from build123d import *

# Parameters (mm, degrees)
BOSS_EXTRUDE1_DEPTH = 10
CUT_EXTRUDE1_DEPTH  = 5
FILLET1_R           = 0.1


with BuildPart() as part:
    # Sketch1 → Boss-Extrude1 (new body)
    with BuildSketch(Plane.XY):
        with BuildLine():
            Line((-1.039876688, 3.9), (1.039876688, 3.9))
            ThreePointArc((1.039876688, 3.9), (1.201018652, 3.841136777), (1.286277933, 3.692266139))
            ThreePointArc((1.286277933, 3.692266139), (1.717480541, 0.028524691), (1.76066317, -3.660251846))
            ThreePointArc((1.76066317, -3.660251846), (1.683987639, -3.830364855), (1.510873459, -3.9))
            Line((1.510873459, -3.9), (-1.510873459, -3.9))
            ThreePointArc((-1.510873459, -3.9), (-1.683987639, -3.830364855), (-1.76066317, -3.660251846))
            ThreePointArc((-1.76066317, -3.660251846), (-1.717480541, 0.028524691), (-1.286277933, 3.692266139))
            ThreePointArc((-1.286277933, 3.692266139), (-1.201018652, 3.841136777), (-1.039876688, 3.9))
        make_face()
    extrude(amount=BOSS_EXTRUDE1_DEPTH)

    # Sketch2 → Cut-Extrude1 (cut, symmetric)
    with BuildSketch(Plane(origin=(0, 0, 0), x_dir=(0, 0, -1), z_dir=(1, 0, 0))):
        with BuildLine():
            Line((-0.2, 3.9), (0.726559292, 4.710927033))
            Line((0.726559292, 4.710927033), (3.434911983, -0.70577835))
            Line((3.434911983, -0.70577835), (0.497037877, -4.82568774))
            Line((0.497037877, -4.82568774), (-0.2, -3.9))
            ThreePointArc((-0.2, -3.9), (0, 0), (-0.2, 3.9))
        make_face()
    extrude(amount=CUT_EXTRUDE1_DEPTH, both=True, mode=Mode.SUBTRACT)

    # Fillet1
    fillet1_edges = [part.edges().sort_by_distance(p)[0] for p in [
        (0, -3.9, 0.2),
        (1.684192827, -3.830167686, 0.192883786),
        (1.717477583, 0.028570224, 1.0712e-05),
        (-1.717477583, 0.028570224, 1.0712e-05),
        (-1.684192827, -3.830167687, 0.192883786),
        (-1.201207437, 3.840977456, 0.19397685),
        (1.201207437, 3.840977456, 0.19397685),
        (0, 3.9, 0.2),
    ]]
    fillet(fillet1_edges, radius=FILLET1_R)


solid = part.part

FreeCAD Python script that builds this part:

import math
import FreeCAD as App
import Part
import Sketcher

V = App.Vector


def edges_at(feature, points):
    """Names of the edges that pass closest to the given points."""
    edges = feature.Shape.Edges
    near = lambda p: min(range(len(edges)), key=lambda i: edges[i].distToShape(Part.Vertex(*p))[0])
    return sorted({f"Edge{near(p) + 1}" for p in points})

doc = App.newDocument("Part")
body = doc.addObject("PartDesign::Body", "Body")

# Sketch on XY plane
sketch1 = body.newObject("Sketcher::SketchObject", "Sketch")
sketch1.AttachmentSupport = (doc.getObject("XY_Plane"), [""])
sketch1.MapMode = "FlatFace"
sketch1.addGeometry(Part.LineSegment(V(1.04, 3.9, 0), V(-1.04, 3.9, 0)), False)
sketch1.addGeometry(Part.ArcOfCircle(Part.Circle(V(-1.04, 3.65, 0), V(0, 0, 1), 0.25), math.radians(90), math.radians(170)), False)
sketch1.addGeometry(Part.ArcOfCircle(Part.Circle(V(33.21, -2.22, 0), V(0, 0, 1), 35), math.radians(170.27), math.radians(182.35)), False)
sketch1.addGeometry(Part.ArcOfCircle(Part.Circle(V(-1.51, -3.65, 0), V(0, 0, 1), 0.25), math.radians(-178), math.radians(-90)), False)
sketch1.addGeometry(Part.LineSegment(V(-1.51, -3.9, 0), V(1.51, -3.9, 0)), False)
sketch1.addGeometry(Part.ArcOfCircle(Part.Circle(V(1.51, -3.65, 0), V(0, 0, 1), 0.25), math.radians(-90), math.radians(-2)), False)
sketch1.addGeometry(Part.ArcOfCircle(Part.Circle(V(-33.21, -2.22, 0), V(0, 0, 1), 35), math.radians(-2.35), math.radians(9.73)), False)
sketch1.addGeometry(Part.ArcOfCircle(Part.Circle(V(1.04, 3.65, 0), V(0, 0, 1), 0.25), math.radians(10), math.radians(90)), False)
sketch1.addConstraint(Sketcher.Constraint("Tangent", 0, 2, 1, 1))
sketch1.addConstraint(Sketcher.Constraint("Tangent", 1, 2, 2, 1))
sketch1.addConstraint(Sketcher.Constraint("Tangent", 2, 2, 3, 1))
sketch1.addConstraint(Sketcher.Constraint("Tangent", 3, 2, 4, 1))
sketch1.addConstraint(Sketcher.Constraint("Tangent", 4, 2, 5, 1))
sketch1.addConstraint(Sketcher.Constraint("Tangent", 5, 2, 6, 1))
sketch1.addConstraint(Sketcher.Constraint("Tangent", 6, 2, 7, 1))
sketch1.addConstraint(Sketcher.Constraint("Tangent", 7, 2, 0, 1))
sketch1.addConstraint(Sketcher.Constraint("Horizontal", 0))
sketch1.addConstraint(Sketcher.Constraint("Horizontal", 4))
sketch1.addConstraint(Sketcher.Constraint("Equal", 1, 3))
sketch1.addConstraint(Sketcher.Constraint("Equal", 3, 5))
sketch1.addConstraint(Sketcher.Constraint("Equal", 2, 6))
sketch1.addConstraint(Sketcher.Constraint("Equal", 5, 7))
sketch1.addConstraint(Sketcher.Constraint("Symmetric", 2, 3, 6, 3, -2))
sketch1.addConstraint(Sketcher.Constraint("Radius", 2, 35.0))
sketch1.addConstraint(Sketcher.Constraint("Radius", 1, 0.25))
sketch1.addConstraint(Sketcher.Constraint("DistanceY", -1, 1, 0, 2, 3.9))
sketch1.addConstraint(Sketcher.Constraint("DistanceY", 3, 2, -1, 1, 3.9))
sketch1.addConstraint(Sketcher.Constraint("DistanceX", 0, 2, 0, 1, 2.079753))
sketch1.addConstraint(Sketcher.Constraint("DistanceX", 4, 1, 4, 2, 3.021747))
pad1 = body.newObject("PartDesign::Pad", "Pad")
pad1.Profile = sketch1
pad1.Length = 10

# Sketch on YZ plane
sketch2 = body.newObject("Sketcher::SketchObject", "Sketch001")
sketch2.AttachmentSupport = (doc.getObject("YZ_Plane"), [""])
sketch2.MapMode = "FlatFace"
sketch2.addGeometry(Part.LineSegment(V(4.7, -0.7, 0), V(3.9, 0.2, 0)), False)
sketch2.addGeometry(Part.ArcOfCircle(Part.Circle(V(0, 38.1, 0), V(0, 0, 1), 38.1), math.radians(-95.87), math.radians(-84.13)), False)
sketch2.addGeometry(Part.LineSegment(V(-3.9, 0.2, 0), V(-4.8, -0.5, 0)), False)
sketch2.addGeometry(Part.LineSegment(V(-4.8, -0.5, 0), V(-0.7, -3.4, 0)), False)
sketch2.addGeometry(Part.LineSegment(V(-0.7, -3.4, 0), V(4.7, -0.7, 0)), False)
sketch2.addConstraint(Sketcher.Constraint("Coincident", 0, 2, 1, 2))
sketch2.addConstraint(Sketcher.Constraint("Coincident", 1, 1, 2, 1))
sketch2.addConstraint(Sketcher.Constraint("Coincident", 2, 2, 3, 1))
sketch2.addConstraint(Sketcher.Constraint("Coincident", 3, 2, 4, 1))
sketch2.addConstraint(Sketcher.Constraint("Coincident", 4, 2, 0, 1))
sketch2.addConstraint(Sketcher.Constraint("Symmetric", 0, 2, 1, 1, -2))
sketch2.addConstraint(Sketcher.Constraint("Radius", 1, 38.125))
sketch2.addConstraint(Sketcher.Constraint("DistanceX", -1, 1, 0, 2, 3.9))
sketch2.addConstraint(Sketcher.Constraint("DistanceY", -1, 1, 0, 2, 0.2))
sketch2.addConstraint(Sketcher.Constraint("Distance", 4, 6.056061))
sketch2.addConstraint(Sketcher.Constraint("DistanceX", 3, 2, -1, 1, 0.705778))
sketch2.addConstraint(Sketcher.Constraint("DistanceY", 3, 2, -1, 1, 3.434912))
sketch2.addConstraint(Sketcher.Constraint("DistanceY", 4, 2, -1, 1, 0.726559))
sketch2.addConstraint(Sketcher.Constraint("DistanceX", 2, 2, 3, 2, 4.119909))
sketch2.addConstraint(Sketcher.Constraint("DistanceY", 4, 2, 2, 2, 0.229521))
pocket1 = body.newObject("PartDesign::Pocket", "Pocket")
pocket1.Profile = sketch2
pocket1.Length = 10
pocket1.Midplane = True
doc.recompute()

fillet = body.newObject("PartDesign::Fillet", "Fillet")
fillet.Base = (pocket1, edges_at(pocket1, [
    (0, -3.9, 0.2),
    (1.684, -3.83, 0.193),
    (1.717, 0.029, 0),
    (-1.717, 0.029, 0),
    (-1.684, -3.83, 0.193),
    (-1.201, 3.841, 0.194),
    (1.201, 3.841, 0.194),
    (0, 3.9, 0.2),
]))
fillet.Radius = 0.1

doc.recompute()
